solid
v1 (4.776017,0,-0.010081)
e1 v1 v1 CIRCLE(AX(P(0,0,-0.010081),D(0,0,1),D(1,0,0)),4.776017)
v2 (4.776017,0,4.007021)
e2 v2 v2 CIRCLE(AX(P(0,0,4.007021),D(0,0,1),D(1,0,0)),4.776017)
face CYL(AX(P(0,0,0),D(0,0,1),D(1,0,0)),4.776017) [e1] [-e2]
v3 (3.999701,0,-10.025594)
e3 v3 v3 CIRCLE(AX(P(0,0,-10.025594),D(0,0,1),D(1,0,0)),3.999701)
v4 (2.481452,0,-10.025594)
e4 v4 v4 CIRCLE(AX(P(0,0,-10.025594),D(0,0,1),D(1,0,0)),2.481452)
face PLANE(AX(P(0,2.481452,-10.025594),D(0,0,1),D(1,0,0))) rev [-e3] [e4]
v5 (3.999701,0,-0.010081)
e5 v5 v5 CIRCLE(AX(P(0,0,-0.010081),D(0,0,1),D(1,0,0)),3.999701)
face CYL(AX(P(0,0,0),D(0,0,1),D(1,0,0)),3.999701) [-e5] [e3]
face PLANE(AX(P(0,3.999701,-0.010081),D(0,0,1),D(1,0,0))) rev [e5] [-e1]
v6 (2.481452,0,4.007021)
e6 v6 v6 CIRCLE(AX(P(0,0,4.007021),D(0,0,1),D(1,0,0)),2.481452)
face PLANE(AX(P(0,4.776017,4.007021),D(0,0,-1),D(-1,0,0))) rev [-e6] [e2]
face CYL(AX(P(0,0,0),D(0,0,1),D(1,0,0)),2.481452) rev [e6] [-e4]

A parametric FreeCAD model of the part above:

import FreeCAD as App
import Part
import Sketcher

V = App.Vector
Q = App.Units.Quantity

doc = App.newDocument("Part")
body = doc.addObject("PartDesign::Body", "Body")

sketch1 = body.newObject("Sketcher::SketchObject", "Sketch")
sketch1.AttachmentSupport = (doc.getObject("YZ_Plane"), [""])
sketch1.MapMode = "FlatFace"
sketch1.addGeometry([
    Part.LineSegment(V(2.5, -10, 0), V(4, -10, 0)),
    Part.LineSegment(V(4, -10, 0), V(4, 0, 0)),
    Part.LineSegment(V(4, 0, 0), V(4.8, 0, 0)),
    Part.LineSegment(V(4.8, 0, 0), V(4.8, 4, 0)),
    Part.LineSegment(V(4.8, 4, 0), V(2.5, 4, 0)),
    Part.LineSegment(V(2.5, 4, 0), V(2.5, -10, 0)),
], False)
sketch1.addConstraint([
    Sketcher.Constraint("Coincident", 0, 2, 1, 1),
    Sketcher.Constraint("Coincident", 1, 2, 2, 1),
    Sketcher.Constraint("Coincident", 2, 2, 3, 1),
    Sketcher.Constraint("Coincident", 3, 2, 4, 1),
    Sketcher.Constraint("Coincident", 4, 2, 5, 1),
    Sketcher.Constraint("Coincident", 5, 2, 0, 1),
    Sketcher.Constraint("Horizontal", 0),
    Sketcher.Constraint("Vertical", 1),
    Sketcher.Constraint("Horizontal", 2),
    Sketcher.Constraint("Vertical", 3),
    Sketcher.Constraint("Horizontal", 4),
    Sketcher.Constraint("Vertical", 5),
    Sketcher.Constraint("DistanceY", 3, 1, 3, 2, Q("4.017101 mm")),
    Sketcher.Constraint("DistanceX", 0, 1, 0, 2, Q("1.518249 mm")),
    Sketcher.Constraint("DistanceX", -1, 1, 0, 2, Q("3.999701 mm")),
    Sketcher.Constraint("DistanceX", 2, 1, 2, 2, Q("0.776316 mm")),
    Sketcher.Constraint("DistanceY", 1, 1, 1, 2, Q("10.015514 mm")),
    Sketcher.Constraint("DistanceY", 1, 2, -1, 1, Q("0.010081 mm")),
])
revolution = body.newObject("PartDesign::Revolution", "Revolution")
revolution.Profile = sketch1
revolution.ReferenceAxis = (sketch1, ["V_Axis"])
revolution.Angle = 360

doc.recompute()
